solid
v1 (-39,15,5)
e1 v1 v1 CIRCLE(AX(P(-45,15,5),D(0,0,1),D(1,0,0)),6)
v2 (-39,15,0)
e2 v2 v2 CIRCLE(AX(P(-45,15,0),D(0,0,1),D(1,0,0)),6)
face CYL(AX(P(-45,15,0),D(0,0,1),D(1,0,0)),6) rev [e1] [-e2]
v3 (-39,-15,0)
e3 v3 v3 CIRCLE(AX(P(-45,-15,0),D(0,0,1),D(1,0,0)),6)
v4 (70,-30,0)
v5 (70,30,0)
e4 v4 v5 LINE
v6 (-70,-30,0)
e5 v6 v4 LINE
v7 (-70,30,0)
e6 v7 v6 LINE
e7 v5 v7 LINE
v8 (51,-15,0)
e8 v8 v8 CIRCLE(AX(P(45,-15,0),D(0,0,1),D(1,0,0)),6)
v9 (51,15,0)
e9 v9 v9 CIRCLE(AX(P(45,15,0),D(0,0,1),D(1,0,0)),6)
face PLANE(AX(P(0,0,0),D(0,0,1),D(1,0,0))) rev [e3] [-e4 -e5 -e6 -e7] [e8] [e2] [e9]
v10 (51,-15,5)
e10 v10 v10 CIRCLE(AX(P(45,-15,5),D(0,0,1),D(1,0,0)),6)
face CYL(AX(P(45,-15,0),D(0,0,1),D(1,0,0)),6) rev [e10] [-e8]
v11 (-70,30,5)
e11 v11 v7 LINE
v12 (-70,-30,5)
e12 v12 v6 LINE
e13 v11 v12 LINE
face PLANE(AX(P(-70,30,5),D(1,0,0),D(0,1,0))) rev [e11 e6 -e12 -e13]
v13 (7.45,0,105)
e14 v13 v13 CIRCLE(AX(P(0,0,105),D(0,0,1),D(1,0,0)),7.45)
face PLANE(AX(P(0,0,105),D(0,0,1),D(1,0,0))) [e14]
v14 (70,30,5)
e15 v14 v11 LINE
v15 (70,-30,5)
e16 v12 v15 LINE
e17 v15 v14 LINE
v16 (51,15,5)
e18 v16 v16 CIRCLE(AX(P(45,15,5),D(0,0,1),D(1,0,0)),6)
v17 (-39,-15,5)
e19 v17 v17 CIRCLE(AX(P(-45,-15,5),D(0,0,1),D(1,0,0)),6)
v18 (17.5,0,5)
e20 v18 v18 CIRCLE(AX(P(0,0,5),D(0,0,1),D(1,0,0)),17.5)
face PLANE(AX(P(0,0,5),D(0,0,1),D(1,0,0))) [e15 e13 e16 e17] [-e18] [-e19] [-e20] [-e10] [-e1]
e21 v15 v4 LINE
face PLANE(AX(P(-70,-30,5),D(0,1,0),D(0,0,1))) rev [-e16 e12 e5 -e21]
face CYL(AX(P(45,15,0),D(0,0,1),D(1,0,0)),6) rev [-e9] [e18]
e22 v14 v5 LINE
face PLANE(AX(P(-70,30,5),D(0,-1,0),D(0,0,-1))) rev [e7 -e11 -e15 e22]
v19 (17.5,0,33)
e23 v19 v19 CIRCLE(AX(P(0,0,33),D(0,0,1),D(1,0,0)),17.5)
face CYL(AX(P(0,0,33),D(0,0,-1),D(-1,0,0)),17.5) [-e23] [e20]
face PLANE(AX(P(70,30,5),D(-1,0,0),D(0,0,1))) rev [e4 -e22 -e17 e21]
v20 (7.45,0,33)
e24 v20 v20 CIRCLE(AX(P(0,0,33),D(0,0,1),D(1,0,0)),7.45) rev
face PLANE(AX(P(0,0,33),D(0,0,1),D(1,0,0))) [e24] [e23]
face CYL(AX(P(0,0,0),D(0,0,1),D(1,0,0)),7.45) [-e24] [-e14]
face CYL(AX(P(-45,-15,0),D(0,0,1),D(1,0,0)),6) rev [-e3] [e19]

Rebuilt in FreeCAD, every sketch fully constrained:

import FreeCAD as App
import Part
import Sketcher
Q = App.Units.Quantity


def add_polygon(sketch, points):
    """Adds a closed chain of lines whose ends are joined by coincident constraints."""
    first, n = sketch.GeometryCount, len(points)
    for a, b in zip(points, points[1:] + points[:1]):
        sketch.addGeometry(Part.LineSegment(App.Vector(*a, 0), App.Vector(*b, 0)), False)
    for i in range(n):
        sketch.addConstraint(Sketcher.Constraint("Coincident", first + i, 2, first + (i + 1) % n, 1))

doc = App.newDocument("Part")
body = doc.addObject("PartDesign::Body", "Body")

# Sketch on XY plane
sketch1 = doc.addObject("Sketcher::SketchObject", "Sketch")
body.addObject(sketch1)
sketch1.AttachmentSupport = (doc.XY_Plane, [""])
sketch1.MapMode = "FlatFace"
add_polygon(sketch1, [(-70, 30), (-70, -30), (70, -30), (70, 30)])  # lines 0-3
sketch1.addConstraint([
    Sketcher.Constraint("Vertical", 0),
    Sketcher.Constraint("Horizontal", 1),
    Sketcher.Constraint("Vertical", 2),
    Sketcher.Constraint("Horizontal", 3),
    Sketcher.Constraint("Symmetric", 0, 2, 2, 2, -1, 1),
    Sketcher.Constraint("DistanceX", 1, 1, 1, 2, Q("140 mm")),
    Sketcher.Constraint("DistanceY", 0, 2, 0, 1, Q("60 mm")),
])
pad1 = doc.addObject("PartDesign::Pad", "Pad")
body.addObject(pad1)
pad1.Profile = sketch1
pad1.Length = 5

# Sketch on XY plane
sketch2 = doc.addObject("Sketcher::SketchObject", "Sketch001")
body.addObject(sketch2)
sketch2.AttachmentSupport = (doc.XY_Plane, [""])
sketch2.MapMode = "FlatFace"
sketch2.AttachmentOffset = App.Placement(App.Vector(0, 0, 5), App.Rotation())
sketch2.addGeometry([
    Part.Circle(App.Vector(0, 0, 0), App.Vector(0, 0, 1), 7),  # 0
    Part.Circle(App.Vector(-45, 15, 0), App.Vector(0, 0, 1), 6),  # 1
    Part.Circle(App.Vector(45, 15, 0), App.Vector(0, 0, 1), 6),  # 2
    Part.Circle(App.Vector(-45, -15, 0), App.Vector(0, 0, 1), 6),  # 3
    Part.Circle(App.Vector(45, -15, 0), App.Vector(0, 0, 1), 6),  # 4
], False)
sketch2.addConstraint([
    Sketcher.Constraint("Coincident", 0, 3, -1, 1),
    Sketcher.Constraint("Equal", 1, 2),
    Sketcher.Constraint("Equal", 2, 3),
    Sketcher.Constraint("Equal", 3, 4),
    Sketcher.Constraint("Symmetric", 2, 3, 3, 3, -1, 1),
    Sketcher.Constraint("Symmetric", 1, 3, 4, 3, -1, 1),
    Sketcher.Constraint("Symmetric", 1, 3, 2, 3, -2),
    Sketcher.Constraint("Diameter", 1, Q("12 mm")),
    Sketcher.Constraint("Diameter", 0, Q("14.9 mm")),
    Sketcher.Constraint("DistanceX", 1, 3, -1, 1, Q("45 mm")),
    Sketcher.Constraint("DistanceY", -1, 1, 1, 3, Q("15 mm")),
])
pocket1 = doc.addObject("PartDesign::Pocket", "Pocket")
body.addObject(pocket1)
pocket1.Profile = sketch2
pocket1.Length = 5

# Sketch on XY plane
sketch3 = doc.addObject("Sketcher::SketchObject", "Sketch002")
body.addObject(sketch3)
sketch3.AttachmentSupport = (doc.XY_Plane, [""])
sketch3.MapMode = "FlatFace"
sketch3.AttachmentOffset = App.Placement(App.Vector(0, 0, 5), App.Rotation())
sketch3.addGeometry(Part.Circle(App.Vector(0, 0, 0), App.Vector(0, 0, 1), 7), False)
sketch3.addConstraint([
    Sketcher.Constraint("Coincident", 0, 3, -1, 1),
    Sketcher.Constraint("Diameter", 0, Q("14.9 mm")),
])
pad2 = doc.addObject("PartDesign::Pad", "Pad001")
body.addObject(pad2)
pad2.Profile = sketch3
pad2.Type = "TwoLengths"
pad2.Length = 100
pad2.Length2 = 5

# Sketch on XY plane
sketch4 = doc.addObject("Sketcher::SketchObject", "Sketch003")
body.addObject(sketch4)
sketch4.AttachmentSupport = (doc.XY_Plane, [""])
sketch4.MapMode = "FlatFace"
sketch4.AttachmentOffset = App.Placement(App.Vector(0, 0, 5), App.Rotation())
sketch4.addGeometry(Part.Circle(App.Vector(0, 0, 0), App.Vector(0, 0, 1), 18), False)
sketch4.addConstraint([
    Sketcher.Constraint("Coincident", 0, 3, -1, 1),
    Sketcher.Constraint("Diameter", 0, Q("35 mm")),
])
pad3 = doc.addObject("PartDesign::Pad", "Pad002")
body.addObject(pad3)
pad3.Profile = sketch4
pad3.Length = 28

doc.recompute()
